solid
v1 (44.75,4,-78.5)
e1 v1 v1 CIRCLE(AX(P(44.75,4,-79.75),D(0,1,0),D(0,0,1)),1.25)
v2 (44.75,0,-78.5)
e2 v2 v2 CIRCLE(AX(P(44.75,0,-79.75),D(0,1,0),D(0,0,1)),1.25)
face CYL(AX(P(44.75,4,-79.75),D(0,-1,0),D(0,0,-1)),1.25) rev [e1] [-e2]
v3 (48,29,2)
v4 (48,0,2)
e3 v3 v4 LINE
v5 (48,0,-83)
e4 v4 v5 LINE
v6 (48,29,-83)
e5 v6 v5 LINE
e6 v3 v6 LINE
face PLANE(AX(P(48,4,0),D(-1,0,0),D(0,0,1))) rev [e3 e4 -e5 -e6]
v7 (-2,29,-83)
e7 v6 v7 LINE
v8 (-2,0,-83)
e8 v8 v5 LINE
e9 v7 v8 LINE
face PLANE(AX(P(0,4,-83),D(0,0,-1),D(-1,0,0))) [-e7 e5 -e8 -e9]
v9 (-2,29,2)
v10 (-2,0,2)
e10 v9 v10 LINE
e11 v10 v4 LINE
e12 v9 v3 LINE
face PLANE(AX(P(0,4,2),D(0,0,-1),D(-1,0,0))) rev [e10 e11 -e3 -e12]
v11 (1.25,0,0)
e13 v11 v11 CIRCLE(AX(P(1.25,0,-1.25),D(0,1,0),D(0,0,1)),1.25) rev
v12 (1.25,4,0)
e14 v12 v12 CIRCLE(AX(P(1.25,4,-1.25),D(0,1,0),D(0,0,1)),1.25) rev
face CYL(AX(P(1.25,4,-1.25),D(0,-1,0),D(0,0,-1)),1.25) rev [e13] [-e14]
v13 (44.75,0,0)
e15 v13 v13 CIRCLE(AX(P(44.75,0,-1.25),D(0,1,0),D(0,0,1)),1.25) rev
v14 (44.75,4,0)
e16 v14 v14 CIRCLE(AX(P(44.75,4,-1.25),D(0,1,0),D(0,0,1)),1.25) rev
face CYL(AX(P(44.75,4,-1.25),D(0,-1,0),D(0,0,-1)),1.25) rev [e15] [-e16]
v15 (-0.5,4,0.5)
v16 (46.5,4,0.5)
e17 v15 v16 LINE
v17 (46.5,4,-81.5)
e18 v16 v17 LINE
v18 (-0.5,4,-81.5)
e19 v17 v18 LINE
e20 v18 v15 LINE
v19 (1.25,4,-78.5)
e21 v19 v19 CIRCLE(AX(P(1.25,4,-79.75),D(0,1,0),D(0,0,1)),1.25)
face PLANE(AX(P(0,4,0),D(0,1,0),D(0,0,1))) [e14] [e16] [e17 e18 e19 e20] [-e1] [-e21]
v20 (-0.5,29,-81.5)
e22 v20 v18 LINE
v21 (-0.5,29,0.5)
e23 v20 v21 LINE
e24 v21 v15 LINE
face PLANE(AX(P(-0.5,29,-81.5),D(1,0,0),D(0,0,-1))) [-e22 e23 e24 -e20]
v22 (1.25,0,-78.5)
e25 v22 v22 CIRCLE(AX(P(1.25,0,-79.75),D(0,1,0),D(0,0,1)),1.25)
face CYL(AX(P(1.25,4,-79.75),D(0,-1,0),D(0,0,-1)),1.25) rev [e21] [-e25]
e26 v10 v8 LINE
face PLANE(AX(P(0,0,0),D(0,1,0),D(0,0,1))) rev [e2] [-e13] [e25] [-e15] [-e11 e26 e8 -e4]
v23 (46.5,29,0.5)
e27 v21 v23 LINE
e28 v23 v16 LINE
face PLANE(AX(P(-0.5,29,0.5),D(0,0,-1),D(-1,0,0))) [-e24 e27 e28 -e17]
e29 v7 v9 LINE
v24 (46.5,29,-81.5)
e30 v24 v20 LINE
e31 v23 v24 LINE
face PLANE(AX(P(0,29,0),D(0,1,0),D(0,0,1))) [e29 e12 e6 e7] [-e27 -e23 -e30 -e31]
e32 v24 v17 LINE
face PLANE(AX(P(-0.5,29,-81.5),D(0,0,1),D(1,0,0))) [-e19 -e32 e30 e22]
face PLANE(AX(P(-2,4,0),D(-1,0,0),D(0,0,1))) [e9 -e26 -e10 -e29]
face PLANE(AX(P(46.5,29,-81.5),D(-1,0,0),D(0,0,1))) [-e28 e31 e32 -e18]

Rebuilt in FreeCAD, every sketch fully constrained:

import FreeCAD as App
import Part
import Sketcher
from FreeCAD import Vector
Q = App.Units.Quantity

doc = App.newDocument("Part")
body = doc.addObject("PartDesign::Body", "Body")

sketch1 = body.newObject("Sketcher::SketchObject", "Sketch")
sketch1.AttachmentSupport = (doc.getObject("XZ_Plane"), [""])
sketch1.MapMode = "FlatFace"
sketch1.addGeometry([
    Part.LineSegment(Vector(-2, -83, 0), Vector(-2, 2, 0)),
    Part.LineSegment(Vector(-2, 2, 0), Vector(48, 2, 0)),
    Part.LineSegment(Vector(48, 2, 0), Vector(48, -83, 0)),
    Part.LineSegment(Vector(48, -83, 0), Vector(-2, -83, 0)),
    Part.Circle(Vector(1.2, -1.2, 0), Vector(0, 0, 1), 1.2),
    Part.Circle(Vector(44.8, -1.2, 0), Vector(0, 0, 1), 1.2),
    Part.Circle(Vector(1.2, -79.8, 0), Vector(0, 0, 1), 1.2),
    Part.Circle(Vector(44.8, -79.8, 0), Vector(0, 0, 1), 1.2),
], False)
sketch1.addConstraint([
    Sketcher.Constraint("Coincident", 0, 2, 1, 1),
    Sketcher.Constraint("Coincident", 1, 2, 2, 1),
    Sketcher.Constraint("Coincident", 2, 2, 3, 1),
    Sketcher.Constraint("Coincident", 3, 2, 0, 1),
    Sketcher.Constraint("Vertical", 0),
    Sketcher.Constraint("Horizontal", 1),
    Sketcher.Constraint("Vertical", 2),
    Sketcher.Constraint("Horizontal", 3),
    Sketcher.Constraint("Equal", 4, 5),
    Sketcher.Constraint("Equal", 5, 6),
    Sketcher.Constraint("Equal", 6, 7),
    Sketcher.Constraint("Horizontal", 4, 3, 5, 3),
    Sketcher.Constraint("Horizontal", 6, 3, 7, 3),
    Sketcher.Constraint("Vertical", 4, 3, 6, 3),
    Sketcher.Constraint("Vertical", 5, 3, 7, 3),
    Sketcher.Constraint("Diameter", 4, Q("2.5 mm")),
    Sketcher.Constraint("DistanceX", 1, 1, 1, 2, Q("50 mm")),
    Sketcher.Constraint("DistanceY", 0, 1, 0, 2, Q("85 mm")),
    Sketcher.Constraint("DistanceX", 0, 2, -1, 1, Q("2 mm")),
    Sketcher.Constraint("DistanceY", -1, 1, 0, 2, Q("2 mm")),
    Sketcher.Constraint("DistanceX", 4, 3, 5, 3, Q("43.5 mm")),
    Sketcher.Constraint("DistanceY", 6, 3, 4, 3, Q("78.5 mm")),
    Sketcher.Constraint("DistanceX", -1, 1, 4, 3, Q("1.25 mm")),
    Sketcher.Constraint("DistanceY", 4, 3, -1, 1, Q("1.25 mm")),
])
pad1 = body.newObject("PartDesign::Pad", "Pad")
pad1.Profile = sketch1
pad1.Length = 4
pad1.Reversed = True

sketch2 = body.newObject("Sketcher::SketchObject", "Sketch001")
sketch2.AttachmentSupport = (doc.getObject("XZ_Plane"), [""])
sketch2.MapMode = "FlatFace"
sketch2.AttachmentOffset = App.Placement(Vector(0, 0, -4), App.Rotation())
sketch2.addGeometry([
    Part.LineSegment(Vector(-2, -83, 0), Vector(-2, 2, 0)),
    Part.LineSegment(Vector(-2, 2, 0), Vector(48, 2, 0)),
    Part.LineSegment(Vector(48, 2, 0), Vector(48, -83, 0)),
    Part.LineSegment(Vector(48, -83, 0), Vector(-2, -83, 0)),
    Part.LineSegment(Vector(46, 0, 0), Vector(0, 0, 0)),
    Part.LineSegment(Vector(0, 0, 0), Vector(0, -82, 0)),
    Part.LineSegment(Vector(0, -82, 0), Vector(46, -82, 0)),
    Part.LineSegment(Vector(46, -82, 0), Vector(46, 0, 0)),
], False)
sketch2.addConstraint([
    Sketcher.Constraint("Coincident", 0, 2, 1, 1),
    Sketcher.Constraint("Coincident", 1, 2, 2, 1),
    Sketcher.Constraint("Coincident", 2, 2, 3, 1),
    Sketcher.Constraint("Coincident", 3, 2, 0, 1),
    Sketcher.Constraint("Coincident", 4, 2, 5, 1),
    Sketcher.Constraint("Coincident", 5, 2, 6, 1),
    Sketcher.Constraint("Coincident", 6, 2, 7, 1),
    Sketcher.Constraint("Coincident", 7, 2, 4, 1),
    Sketcher.Constraint("Vertical", 0),
    Sketcher.Constraint("Horizontal", 1),
    Sketcher.Constraint("Vertical", 2),
    Sketcher.Constraint("Horizontal", 3),
    Sketcher.Constraint("Horizontal", 4),
    Sketcher.Constraint("Vertical", 5),
    Sketcher.Constraint("Horizontal", 6),
    Sketcher.Constraint("Vertical", 7),
    Sketcher.Constraint("DistanceX", 1, 1, 1, 2, Q("50 mm")),
    Sketcher.Constraint("DistanceX", 4, 2, 4, 1, Q("47 mm")),
    Sketcher.Constraint("DistanceY", 0, 1, 0, 2, Q("85 mm")),
    Sketcher.Constraint("DistanceY", 5, 2, 5, 1, Q("82 mm")),
    Sketcher.Constraint("DistanceX", 0, 2, -1, 1, Q("2 mm")),
    Sketcher.Constraint("DistanceY", -1, 1, 0, 2, Q("2 mm")),
    Sketcher.Constraint("DistanceX", 4, 2, -1, 1, Q("0.5 mm")),
    Sketcher.Constraint("DistanceY", -1, 1, 4, 2, Q("0.5 mm")),
])
pad2 = body.newObject("PartDesign::Pad", "Pad001")
pad2.Profile = sketch2
pad2.Length = 25
pad2.Reversed = True

doc.recompute()
